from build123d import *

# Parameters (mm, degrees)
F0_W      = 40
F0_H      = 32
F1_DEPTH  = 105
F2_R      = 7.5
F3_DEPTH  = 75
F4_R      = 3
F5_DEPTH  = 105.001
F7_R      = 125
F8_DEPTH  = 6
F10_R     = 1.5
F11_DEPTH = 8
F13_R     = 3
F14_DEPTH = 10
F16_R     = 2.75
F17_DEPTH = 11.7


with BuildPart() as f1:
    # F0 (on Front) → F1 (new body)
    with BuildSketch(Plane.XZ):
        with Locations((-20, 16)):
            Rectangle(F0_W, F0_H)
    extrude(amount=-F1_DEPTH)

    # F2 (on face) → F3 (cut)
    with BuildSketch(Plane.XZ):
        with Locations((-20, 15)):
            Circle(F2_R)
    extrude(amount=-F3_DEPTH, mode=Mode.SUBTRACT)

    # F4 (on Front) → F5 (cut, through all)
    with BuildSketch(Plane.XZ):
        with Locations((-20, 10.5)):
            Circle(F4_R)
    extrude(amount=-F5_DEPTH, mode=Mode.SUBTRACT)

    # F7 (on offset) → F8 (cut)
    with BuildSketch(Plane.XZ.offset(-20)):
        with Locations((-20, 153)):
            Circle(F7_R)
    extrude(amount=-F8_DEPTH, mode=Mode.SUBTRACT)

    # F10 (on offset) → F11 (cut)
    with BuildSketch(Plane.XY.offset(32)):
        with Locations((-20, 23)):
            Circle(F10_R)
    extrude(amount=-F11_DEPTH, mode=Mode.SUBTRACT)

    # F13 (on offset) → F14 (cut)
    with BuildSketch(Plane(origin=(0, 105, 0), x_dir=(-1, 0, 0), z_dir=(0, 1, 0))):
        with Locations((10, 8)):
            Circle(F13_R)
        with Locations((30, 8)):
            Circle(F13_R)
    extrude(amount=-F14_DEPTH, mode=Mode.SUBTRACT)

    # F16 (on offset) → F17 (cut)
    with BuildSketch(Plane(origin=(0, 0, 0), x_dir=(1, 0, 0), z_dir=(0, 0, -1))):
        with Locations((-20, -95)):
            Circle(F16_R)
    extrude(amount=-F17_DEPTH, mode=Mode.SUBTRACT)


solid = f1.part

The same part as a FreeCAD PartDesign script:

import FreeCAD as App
import Part
import Sketcher
from FreeCAD import Vector


def add_polygon(sketch, points):
    """Adds a closed chain of lines whose ends are joined by coincident constraints."""
    first, n = sketch.GeometryCount, len(points)
    for a, b in zip(points, points[1:] + points[:1]):
        sketch.addGeometry(Part.LineSegment(App.Vector(*a, 0), App.Vector(*b, 0)), False)
    for i in range(n):
        sketch.addConstraint(Sketcher.Constraint("Coincident", first + i, 2, first + (i + 1) % n, 1))

doc = App.newDocument("Part")
body = doc.addObject("PartDesign::Body", "Body")

sketch1 = body.newObject("Sketcher::SketchObject", "Sketch")
sketch1.AttachmentSupport = (doc.getObject("XZ_Plane"), [""])
sketch1.MapMode = "FlatFace"
add_polygon(sketch1, [(-40, 32), (-40, 0), (0, 0), (0, 32)])
sketch1.addConstraint(Sketcher.Constraint("Vertical", 0))
sketch1.addConstraint(Sketcher.Constraint("Horizontal", 1))
sketch1.addConstraint(Sketcher.Constraint("Vertical", 2))
sketch1.addConstraint(Sketcher.Constraint("Horizontal", 3))
sketch1.addConstraint(Sketcher.Constraint("Coincident", 1, 2, -1, 1))
sketch1.addConstraint(Sketcher.Constraint("DistanceX", 1, 1, 1, 2, 40.0))
sketch1.addConstraint(Sketcher.Constraint("DistanceY", 0, 2, 0, 1, 32.0))
pad1 = body.newObject("PartDesign::Pad", "Pad")
pad1.Profile = sketch1
pad1.Length = 105
pad1.Reversed = True

sketch2 = body.newObject("Sketcher::SketchObject", "Sketch001")
sketch2.AttachmentSupport = (doc.getObject("XZ_Plane"), [""])
sketch2.MapMode = "FlatFace"
sketch2.addGeometry(Part.Circle(Vector(-20, 15, 0), Vector(0, 0, 1), 8), False)
sketch2.addConstraint(Sketcher.Constraint("Diameter", 0, 15.0))
sketch2.addConstraint(Sketcher.Constraint("DistanceX", 0, 3, -1, 1, 20.0))
sketch2.addConstraint(Sketcher.Constraint("DistanceY", -1, 1, 0, 3, 15.0))
pocket1 = body.newObject("PartDesign::Pocket", "Pocket")
pocket1.Profile = sketch2
pocket1.Length = 75

sketch3 = body.newObject("Sketcher::SketchObject", "Sketch002")
sketch3.AttachmentSupport = (doc.getObject("XZ_Plane"), [""])
sketch3.MapMode = "FlatFace"
sketch3.addGeometry(Part.Circle(Vector(-20, 10.5, 0), Vector(0, 0, 1), 3), False)
sketch3.addConstraint(Sketcher.Constraint("Diameter", 0, 6.0))
sketch3.addConstraint(Sketcher.Constraint("DistanceX", 0, 3, -1, 1, 20.0))
sketch3.addConstraint(Sketcher.Constraint("DistanceY", -1, 1, 0, 3, 10.5))
pocket2 = body.newObject("PartDesign::Pocket", "Pocket001")
pocket2.Profile = sketch3
pocket2.Type = "ThroughAll"

sketch4 = body.newObject("Sketcher::SketchObject", "Sketch003")
sketch4.AttachmentSupport = (doc.getObject("XZ_Plane"), [""])
sketch4.MapMode = "FlatFace"
sketch4.AttachmentOffset = App.Placement(Vector(0, 0, -20), App.Rotation())
sketch4.addGeometry(Part.Circle(Vector(-20, 153, 0), Vector(0, 0, 1), 125), False)
sketch4.addConstraint(Sketcher.Constraint("Diameter", 0, 250.0))
sketch4.addConstraint(Sketcher.Constraint("DistanceX", 0, 3, -1, 1, 20.0))
sketch4.addConstraint(Sketcher.Constraint("DistanceY", -1, 1, 0, 3, 153.0))
pocket3 = body.newObject("PartDesign::Pocket", "Pocket002")
pocket3.Profile = sketch4
pocket3.Length = 6

sketch5 = body.newObject("Sketcher::SketchObject", "Sketch004")
sketch5.AttachmentSupport = (doc.getObject("XY_Plane"), [""])
sketch5.MapMode = "FlatFace"
sketch5.AttachmentOffset = App.Placement(Vector(0, 0, 32), App.Rotation())
sketch5.addGeometry(Part.Circle(Vector(-20, 23, 0), Vector(0, 0, 1), 1.5), False)
sketch5.addConstraint(Sketcher.Constraint("Diameter", 0, 3.0))
sketch5.addConstraint(Sketcher.Constraint("DistanceX", 0, 3, -1, 1, 20.0))
sketch5.addConstraint(Sketcher.Constraint("DistanceY", -1, 1, 0, 3, 23.0))
pocket4 = body.newObject("PartDesign::Pocket", "Pocket003")
pocket4.Profile = sketch5
pocket4.Length = 8

sketch6 = body.newObject("Sketcher::SketchObject", "Sketch005")
sketch6.AttachmentSupport = (doc.getObject("XZ_Plane"), [""])
sketch6.MapMode = "FlatFace"
sketch6.AttachmentOffset = App.Placement(Vector(0, 0, -105), App.Rotation())
sketch6.addGeometry(Part.Circle(Vector(-10, 8, 0), Vector(0, 0, 1), 3), False)
sketch6.addGeometry(Part.Circle(Vector(-30, 8, 0), Vector(0, 0, 1), 3), False)
sketch6.addConstraint(Sketcher.Constraint("Equal", 0, 1))
sketch6.addConstraint(Sketcher.Constraint("Horizontal", 0, 3, 1, 3))
sketch6.addConstraint(Sketcher.Constraint("Diameter", 0, 6.0))
sketch6.addConstraint(Sketcher.Constraint("DistanceX", 0, 3, -1, 1, 10.0))
sketch6.addConstraint(Sketcher.Constraint("DistanceY", -1, 1, 0, 3, 8.0))
sketch6.addConstraint(Sketcher.Constraint("DistanceX", 1, 3, -1, 1, 30.0))
pocket5 = body.newObject("PartDesign::Pocket", "Pocket004")
pocket5.Profile = sketch6
pocket5.Length = 10
pocket5.Reversed = True

sketch7 = body.newObject("Sketcher::SketchObject", "Sketch006")
sketch7.AttachmentSupport = (doc.getObject("XY_Plane"), [""])
sketch7.MapMode = "FlatFace"
sketch7.addGeometry(Part.Circle(Vector(-20, 95, 0), Vector(0, 0, 1), 2.8), False)
sketch7.addConstraint(Sketcher.Constraint("Diameter", 0, 5.5))
sketch7.addConstraint(Sketcher.Constraint("DistanceX", 0, 3, -1, 1, 20.0))
sketch7.addConstraint(Sketcher.Constraint("DistanceY", -1, 1, 0, 3, 95.0))
pocket6 = body.newObject("PartDesign::Pocket", "Pocket005")
pocket6.Profile = sketch7
pocket6.Length = 11.7
pocket6.Reversed = True

doc.recompute()
